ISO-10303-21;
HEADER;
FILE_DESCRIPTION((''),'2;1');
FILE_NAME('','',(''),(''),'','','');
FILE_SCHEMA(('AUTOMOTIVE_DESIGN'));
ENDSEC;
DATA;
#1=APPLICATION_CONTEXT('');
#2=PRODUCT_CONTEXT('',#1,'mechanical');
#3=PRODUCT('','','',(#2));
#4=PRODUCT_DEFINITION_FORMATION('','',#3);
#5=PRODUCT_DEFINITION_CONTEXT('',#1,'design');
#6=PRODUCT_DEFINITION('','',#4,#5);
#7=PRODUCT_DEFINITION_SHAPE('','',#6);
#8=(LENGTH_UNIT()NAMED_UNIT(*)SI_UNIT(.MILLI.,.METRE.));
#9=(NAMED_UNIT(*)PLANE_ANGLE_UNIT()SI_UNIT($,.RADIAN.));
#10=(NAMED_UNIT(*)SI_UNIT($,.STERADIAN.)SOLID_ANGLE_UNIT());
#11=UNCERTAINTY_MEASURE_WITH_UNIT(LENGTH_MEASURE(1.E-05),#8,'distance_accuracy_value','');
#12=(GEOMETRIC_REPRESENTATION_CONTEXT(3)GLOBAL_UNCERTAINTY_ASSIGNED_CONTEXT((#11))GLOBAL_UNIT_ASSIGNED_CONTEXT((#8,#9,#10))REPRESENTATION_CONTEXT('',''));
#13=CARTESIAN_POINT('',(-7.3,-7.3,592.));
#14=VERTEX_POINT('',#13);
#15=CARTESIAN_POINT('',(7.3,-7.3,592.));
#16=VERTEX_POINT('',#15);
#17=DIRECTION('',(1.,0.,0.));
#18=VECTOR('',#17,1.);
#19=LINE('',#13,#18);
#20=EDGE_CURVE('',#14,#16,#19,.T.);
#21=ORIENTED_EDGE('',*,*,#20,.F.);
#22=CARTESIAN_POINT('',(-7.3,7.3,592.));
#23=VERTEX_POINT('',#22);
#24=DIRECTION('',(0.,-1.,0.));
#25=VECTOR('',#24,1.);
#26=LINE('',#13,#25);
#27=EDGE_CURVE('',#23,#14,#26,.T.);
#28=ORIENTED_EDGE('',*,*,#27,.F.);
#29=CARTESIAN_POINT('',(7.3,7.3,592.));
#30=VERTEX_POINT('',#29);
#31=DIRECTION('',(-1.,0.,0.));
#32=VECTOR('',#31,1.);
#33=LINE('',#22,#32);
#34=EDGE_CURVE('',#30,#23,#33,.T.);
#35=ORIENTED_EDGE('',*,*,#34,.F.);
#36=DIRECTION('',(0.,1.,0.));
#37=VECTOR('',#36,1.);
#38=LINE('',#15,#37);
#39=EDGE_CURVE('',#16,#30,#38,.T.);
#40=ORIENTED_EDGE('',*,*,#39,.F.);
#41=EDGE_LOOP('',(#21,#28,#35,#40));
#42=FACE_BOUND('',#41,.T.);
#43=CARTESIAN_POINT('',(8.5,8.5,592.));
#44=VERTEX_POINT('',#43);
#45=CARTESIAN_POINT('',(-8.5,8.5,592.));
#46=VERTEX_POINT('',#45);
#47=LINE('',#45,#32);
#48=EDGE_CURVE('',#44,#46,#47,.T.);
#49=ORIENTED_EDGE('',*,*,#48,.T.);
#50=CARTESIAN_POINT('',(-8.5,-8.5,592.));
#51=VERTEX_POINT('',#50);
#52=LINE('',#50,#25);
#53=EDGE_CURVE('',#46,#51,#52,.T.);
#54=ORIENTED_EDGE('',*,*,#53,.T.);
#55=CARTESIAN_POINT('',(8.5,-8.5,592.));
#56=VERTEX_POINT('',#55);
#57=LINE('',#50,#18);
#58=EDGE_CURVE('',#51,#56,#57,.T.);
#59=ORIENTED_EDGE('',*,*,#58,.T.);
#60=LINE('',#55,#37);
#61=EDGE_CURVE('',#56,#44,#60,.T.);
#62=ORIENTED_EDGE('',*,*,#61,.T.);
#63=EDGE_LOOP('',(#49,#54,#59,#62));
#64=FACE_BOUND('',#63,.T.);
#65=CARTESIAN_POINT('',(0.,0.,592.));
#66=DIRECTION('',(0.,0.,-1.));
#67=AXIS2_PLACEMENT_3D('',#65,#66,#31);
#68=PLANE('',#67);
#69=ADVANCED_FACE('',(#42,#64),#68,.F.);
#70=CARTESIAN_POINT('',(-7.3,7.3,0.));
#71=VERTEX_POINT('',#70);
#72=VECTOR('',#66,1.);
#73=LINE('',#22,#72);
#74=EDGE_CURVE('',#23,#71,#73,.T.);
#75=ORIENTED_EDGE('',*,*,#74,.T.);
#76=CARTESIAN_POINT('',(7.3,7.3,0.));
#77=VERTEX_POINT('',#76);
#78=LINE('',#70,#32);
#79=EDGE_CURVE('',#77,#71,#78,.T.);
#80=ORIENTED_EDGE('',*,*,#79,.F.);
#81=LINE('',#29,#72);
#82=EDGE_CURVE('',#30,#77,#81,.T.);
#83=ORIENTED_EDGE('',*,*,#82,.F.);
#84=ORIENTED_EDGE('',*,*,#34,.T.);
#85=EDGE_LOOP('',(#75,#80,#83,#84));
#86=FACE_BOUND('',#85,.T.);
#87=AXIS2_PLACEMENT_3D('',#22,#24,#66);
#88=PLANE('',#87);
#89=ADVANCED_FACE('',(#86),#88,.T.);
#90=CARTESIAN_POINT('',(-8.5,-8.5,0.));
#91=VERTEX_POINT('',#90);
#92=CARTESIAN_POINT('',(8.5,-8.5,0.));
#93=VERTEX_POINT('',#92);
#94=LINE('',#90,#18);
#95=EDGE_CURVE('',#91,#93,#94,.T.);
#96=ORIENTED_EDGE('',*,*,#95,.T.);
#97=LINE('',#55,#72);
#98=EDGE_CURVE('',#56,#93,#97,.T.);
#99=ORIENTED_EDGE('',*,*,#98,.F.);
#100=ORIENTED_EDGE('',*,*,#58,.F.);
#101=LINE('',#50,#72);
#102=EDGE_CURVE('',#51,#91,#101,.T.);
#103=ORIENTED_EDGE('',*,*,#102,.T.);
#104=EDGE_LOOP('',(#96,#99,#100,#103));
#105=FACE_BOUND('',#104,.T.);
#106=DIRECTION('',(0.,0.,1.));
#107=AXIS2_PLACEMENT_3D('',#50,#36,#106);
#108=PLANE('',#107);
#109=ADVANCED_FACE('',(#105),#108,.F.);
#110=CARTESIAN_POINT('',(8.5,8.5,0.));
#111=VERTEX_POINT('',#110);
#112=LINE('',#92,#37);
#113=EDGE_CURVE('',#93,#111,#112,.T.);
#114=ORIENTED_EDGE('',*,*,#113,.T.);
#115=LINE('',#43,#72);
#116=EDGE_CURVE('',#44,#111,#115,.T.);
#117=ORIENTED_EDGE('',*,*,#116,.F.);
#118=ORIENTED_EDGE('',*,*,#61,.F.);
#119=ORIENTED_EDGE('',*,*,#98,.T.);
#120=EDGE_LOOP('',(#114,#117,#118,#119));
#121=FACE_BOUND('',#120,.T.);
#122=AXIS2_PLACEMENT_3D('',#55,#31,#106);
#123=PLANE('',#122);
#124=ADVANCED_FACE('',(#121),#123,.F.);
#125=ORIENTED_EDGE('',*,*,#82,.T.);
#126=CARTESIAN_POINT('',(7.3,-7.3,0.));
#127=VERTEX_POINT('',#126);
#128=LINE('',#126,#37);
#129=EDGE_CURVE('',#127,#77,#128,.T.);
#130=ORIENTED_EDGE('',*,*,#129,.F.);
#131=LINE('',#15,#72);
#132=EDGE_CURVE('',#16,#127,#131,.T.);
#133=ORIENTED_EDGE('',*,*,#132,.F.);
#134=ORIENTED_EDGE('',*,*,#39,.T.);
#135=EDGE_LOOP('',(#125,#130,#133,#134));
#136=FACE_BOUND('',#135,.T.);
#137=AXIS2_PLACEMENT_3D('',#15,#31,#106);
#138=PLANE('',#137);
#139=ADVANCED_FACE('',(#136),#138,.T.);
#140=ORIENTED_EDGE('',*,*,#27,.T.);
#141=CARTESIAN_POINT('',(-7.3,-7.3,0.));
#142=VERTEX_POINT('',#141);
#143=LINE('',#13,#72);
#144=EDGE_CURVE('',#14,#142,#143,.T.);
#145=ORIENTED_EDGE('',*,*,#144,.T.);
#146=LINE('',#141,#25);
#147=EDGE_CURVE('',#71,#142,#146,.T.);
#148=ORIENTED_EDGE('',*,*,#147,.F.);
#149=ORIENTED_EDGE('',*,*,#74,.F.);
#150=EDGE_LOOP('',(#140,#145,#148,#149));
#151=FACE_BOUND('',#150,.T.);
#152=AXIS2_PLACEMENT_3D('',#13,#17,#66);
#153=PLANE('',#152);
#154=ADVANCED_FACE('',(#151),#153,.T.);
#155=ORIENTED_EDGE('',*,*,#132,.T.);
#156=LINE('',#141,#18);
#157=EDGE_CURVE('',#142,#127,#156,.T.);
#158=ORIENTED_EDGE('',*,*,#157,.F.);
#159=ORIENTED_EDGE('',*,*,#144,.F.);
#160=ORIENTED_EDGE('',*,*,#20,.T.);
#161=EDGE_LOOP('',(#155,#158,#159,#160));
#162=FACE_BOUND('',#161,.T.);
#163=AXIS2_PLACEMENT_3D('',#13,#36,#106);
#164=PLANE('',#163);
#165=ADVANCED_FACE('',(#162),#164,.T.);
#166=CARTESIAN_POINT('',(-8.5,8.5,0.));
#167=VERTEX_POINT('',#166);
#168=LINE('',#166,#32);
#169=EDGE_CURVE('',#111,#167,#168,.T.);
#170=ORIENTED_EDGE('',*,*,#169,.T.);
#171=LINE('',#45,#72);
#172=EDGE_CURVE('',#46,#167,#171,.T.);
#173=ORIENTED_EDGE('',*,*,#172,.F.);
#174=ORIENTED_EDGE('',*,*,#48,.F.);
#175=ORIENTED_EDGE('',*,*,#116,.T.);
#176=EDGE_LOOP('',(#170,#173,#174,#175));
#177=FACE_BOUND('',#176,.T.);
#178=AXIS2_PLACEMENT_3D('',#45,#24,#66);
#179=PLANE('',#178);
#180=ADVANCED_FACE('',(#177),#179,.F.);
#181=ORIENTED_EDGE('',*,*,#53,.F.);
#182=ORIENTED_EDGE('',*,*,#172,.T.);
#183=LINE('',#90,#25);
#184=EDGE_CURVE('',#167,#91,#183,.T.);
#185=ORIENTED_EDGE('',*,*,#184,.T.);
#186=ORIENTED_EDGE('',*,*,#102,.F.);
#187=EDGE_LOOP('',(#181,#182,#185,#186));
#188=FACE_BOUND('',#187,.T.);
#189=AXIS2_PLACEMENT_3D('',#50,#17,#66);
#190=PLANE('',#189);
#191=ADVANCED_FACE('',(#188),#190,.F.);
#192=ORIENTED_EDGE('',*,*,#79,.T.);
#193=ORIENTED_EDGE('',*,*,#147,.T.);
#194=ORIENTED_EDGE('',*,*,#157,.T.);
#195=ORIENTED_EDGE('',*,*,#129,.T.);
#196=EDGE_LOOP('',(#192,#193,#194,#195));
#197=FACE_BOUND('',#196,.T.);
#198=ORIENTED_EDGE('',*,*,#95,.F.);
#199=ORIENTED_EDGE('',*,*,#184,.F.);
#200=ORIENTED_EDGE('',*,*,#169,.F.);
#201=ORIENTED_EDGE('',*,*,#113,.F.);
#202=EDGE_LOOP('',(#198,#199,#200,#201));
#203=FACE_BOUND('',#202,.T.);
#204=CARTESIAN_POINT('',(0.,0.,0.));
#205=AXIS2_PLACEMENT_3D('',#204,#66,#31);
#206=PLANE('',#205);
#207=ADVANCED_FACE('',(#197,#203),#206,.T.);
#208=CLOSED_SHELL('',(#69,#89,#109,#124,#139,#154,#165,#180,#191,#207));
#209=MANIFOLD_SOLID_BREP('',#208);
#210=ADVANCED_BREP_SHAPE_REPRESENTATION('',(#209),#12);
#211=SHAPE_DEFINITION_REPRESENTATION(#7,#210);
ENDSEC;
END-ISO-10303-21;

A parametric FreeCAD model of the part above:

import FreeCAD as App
import Part
import Sketcher
from FreeCAD import Vector
Q = App.Units.Quantity


def add_polygon(sketch, points):
    """Adds a closed chain of lines whose ends are joined by coincident constraints."""
    first, n = sketch.GeometryCount, len(points)
    for a, b in zip(points, points[1:] + points[:1]):
        sketch.addGeometry(Part.LineSegment(App.Vector(*a, 0), App.Vector(*b, 0)), False)
    for i in range(n):
        sketch.addConstraint(Sketcher.Constraint("Coincident", first + i, 2, first + (i + 1) % n, 1))

doc = App.newDocument("Part")
params = doc.addObject("Spreadsheet::Sheet", "Params")
for row, (alias, value) in enumerate([
    ("sketch1_width", "17 mm"),
    ("sketch1_width2", "14.6 mm"),
    ("pad1_length", "592 mm"),
], start=1):
    params.set(f"A{row}", alias)
    params.set(f"B{row}", "=" + value)
    params.setAlias(f"B{row}", alias)

body = doc.addObject("PartDesign::Body", "Body")

# Sketch on XY plane
sketch1 = doc.addObject("Sketcher::SketchObject", "Sketch")
body.addObject(sketch1)
sketch1.AttachmentSupport = (doc.XY_Plane, [""])
sketch1.MapMode = "FlatFace"
add_polygon(sketch1, [(-8.5, 8.5), (-8.5, -8.5), (8.5, -8.5), (8.5, 8.5)])  # lines 0-3
add_polygon(sketch1, [(7.3, -7.3), (-7.3, -7.3), (-7.3, 7.3), (7.3, 7.3)])  # lines 4-7
sketch1.addConstraint(Sketcher.Constraint("Vertical", 0))
sketch1.addConstraint(Sketcher.Constraint("Horizontal", 1))
sketch1.addConstraint(Sketcher.Constraint("Vertical", 2))
sketch1.addConstraint(Sketcher.Constraint("Horizontal", 3))
sketch1.addConstraint(Sketcher.Constraint("Horizontal", 4))
sketch1.addConstraint(Sketcher.Constraint("Vertical", 5))
sketch1.addConstraint(Sketcher.Constraint("Horizontal", 6))
sketch1.addConstraint(Sketcher.Constraint("Vertical", 7))
sketch1.addConstraint(Sketcher.Constraint("Symmetric", 0, 2, 2, 2, -1, 1))
sketch1.addConstraint(Sketcher.Constraint("Symmetric", 4, 2, 6, 2, -1, 1))
sketch1.addConstraint(Sketcher.Constraint("Equal", 3, 0))
sketch1.addConstraint(Sketcher.Constraint("Equal", 6, 5))
sketch1.addConstraint(Sketcher.Constraint("DistanceX", 1, 1, 1, 2, Q("17 mm")))
sketch1.addConstraint(Sketcher.Constraint("DistanceX", 4, 2, 4, 1, Q("14.6 mm")))
sketch1.setExpression("Constraints[20]", "Params.sketch1_width")
sketch1.setExpression("Constraints[21]", "Params.sketch1_width2")
pad1 = doc.addObject("PartDesign::Pad", "Pad")
body.addObject(pad1)
pad1.Profile = sketch1
pad1.setExpression("Length", "Params.pad1_length")

doc.recompute()
